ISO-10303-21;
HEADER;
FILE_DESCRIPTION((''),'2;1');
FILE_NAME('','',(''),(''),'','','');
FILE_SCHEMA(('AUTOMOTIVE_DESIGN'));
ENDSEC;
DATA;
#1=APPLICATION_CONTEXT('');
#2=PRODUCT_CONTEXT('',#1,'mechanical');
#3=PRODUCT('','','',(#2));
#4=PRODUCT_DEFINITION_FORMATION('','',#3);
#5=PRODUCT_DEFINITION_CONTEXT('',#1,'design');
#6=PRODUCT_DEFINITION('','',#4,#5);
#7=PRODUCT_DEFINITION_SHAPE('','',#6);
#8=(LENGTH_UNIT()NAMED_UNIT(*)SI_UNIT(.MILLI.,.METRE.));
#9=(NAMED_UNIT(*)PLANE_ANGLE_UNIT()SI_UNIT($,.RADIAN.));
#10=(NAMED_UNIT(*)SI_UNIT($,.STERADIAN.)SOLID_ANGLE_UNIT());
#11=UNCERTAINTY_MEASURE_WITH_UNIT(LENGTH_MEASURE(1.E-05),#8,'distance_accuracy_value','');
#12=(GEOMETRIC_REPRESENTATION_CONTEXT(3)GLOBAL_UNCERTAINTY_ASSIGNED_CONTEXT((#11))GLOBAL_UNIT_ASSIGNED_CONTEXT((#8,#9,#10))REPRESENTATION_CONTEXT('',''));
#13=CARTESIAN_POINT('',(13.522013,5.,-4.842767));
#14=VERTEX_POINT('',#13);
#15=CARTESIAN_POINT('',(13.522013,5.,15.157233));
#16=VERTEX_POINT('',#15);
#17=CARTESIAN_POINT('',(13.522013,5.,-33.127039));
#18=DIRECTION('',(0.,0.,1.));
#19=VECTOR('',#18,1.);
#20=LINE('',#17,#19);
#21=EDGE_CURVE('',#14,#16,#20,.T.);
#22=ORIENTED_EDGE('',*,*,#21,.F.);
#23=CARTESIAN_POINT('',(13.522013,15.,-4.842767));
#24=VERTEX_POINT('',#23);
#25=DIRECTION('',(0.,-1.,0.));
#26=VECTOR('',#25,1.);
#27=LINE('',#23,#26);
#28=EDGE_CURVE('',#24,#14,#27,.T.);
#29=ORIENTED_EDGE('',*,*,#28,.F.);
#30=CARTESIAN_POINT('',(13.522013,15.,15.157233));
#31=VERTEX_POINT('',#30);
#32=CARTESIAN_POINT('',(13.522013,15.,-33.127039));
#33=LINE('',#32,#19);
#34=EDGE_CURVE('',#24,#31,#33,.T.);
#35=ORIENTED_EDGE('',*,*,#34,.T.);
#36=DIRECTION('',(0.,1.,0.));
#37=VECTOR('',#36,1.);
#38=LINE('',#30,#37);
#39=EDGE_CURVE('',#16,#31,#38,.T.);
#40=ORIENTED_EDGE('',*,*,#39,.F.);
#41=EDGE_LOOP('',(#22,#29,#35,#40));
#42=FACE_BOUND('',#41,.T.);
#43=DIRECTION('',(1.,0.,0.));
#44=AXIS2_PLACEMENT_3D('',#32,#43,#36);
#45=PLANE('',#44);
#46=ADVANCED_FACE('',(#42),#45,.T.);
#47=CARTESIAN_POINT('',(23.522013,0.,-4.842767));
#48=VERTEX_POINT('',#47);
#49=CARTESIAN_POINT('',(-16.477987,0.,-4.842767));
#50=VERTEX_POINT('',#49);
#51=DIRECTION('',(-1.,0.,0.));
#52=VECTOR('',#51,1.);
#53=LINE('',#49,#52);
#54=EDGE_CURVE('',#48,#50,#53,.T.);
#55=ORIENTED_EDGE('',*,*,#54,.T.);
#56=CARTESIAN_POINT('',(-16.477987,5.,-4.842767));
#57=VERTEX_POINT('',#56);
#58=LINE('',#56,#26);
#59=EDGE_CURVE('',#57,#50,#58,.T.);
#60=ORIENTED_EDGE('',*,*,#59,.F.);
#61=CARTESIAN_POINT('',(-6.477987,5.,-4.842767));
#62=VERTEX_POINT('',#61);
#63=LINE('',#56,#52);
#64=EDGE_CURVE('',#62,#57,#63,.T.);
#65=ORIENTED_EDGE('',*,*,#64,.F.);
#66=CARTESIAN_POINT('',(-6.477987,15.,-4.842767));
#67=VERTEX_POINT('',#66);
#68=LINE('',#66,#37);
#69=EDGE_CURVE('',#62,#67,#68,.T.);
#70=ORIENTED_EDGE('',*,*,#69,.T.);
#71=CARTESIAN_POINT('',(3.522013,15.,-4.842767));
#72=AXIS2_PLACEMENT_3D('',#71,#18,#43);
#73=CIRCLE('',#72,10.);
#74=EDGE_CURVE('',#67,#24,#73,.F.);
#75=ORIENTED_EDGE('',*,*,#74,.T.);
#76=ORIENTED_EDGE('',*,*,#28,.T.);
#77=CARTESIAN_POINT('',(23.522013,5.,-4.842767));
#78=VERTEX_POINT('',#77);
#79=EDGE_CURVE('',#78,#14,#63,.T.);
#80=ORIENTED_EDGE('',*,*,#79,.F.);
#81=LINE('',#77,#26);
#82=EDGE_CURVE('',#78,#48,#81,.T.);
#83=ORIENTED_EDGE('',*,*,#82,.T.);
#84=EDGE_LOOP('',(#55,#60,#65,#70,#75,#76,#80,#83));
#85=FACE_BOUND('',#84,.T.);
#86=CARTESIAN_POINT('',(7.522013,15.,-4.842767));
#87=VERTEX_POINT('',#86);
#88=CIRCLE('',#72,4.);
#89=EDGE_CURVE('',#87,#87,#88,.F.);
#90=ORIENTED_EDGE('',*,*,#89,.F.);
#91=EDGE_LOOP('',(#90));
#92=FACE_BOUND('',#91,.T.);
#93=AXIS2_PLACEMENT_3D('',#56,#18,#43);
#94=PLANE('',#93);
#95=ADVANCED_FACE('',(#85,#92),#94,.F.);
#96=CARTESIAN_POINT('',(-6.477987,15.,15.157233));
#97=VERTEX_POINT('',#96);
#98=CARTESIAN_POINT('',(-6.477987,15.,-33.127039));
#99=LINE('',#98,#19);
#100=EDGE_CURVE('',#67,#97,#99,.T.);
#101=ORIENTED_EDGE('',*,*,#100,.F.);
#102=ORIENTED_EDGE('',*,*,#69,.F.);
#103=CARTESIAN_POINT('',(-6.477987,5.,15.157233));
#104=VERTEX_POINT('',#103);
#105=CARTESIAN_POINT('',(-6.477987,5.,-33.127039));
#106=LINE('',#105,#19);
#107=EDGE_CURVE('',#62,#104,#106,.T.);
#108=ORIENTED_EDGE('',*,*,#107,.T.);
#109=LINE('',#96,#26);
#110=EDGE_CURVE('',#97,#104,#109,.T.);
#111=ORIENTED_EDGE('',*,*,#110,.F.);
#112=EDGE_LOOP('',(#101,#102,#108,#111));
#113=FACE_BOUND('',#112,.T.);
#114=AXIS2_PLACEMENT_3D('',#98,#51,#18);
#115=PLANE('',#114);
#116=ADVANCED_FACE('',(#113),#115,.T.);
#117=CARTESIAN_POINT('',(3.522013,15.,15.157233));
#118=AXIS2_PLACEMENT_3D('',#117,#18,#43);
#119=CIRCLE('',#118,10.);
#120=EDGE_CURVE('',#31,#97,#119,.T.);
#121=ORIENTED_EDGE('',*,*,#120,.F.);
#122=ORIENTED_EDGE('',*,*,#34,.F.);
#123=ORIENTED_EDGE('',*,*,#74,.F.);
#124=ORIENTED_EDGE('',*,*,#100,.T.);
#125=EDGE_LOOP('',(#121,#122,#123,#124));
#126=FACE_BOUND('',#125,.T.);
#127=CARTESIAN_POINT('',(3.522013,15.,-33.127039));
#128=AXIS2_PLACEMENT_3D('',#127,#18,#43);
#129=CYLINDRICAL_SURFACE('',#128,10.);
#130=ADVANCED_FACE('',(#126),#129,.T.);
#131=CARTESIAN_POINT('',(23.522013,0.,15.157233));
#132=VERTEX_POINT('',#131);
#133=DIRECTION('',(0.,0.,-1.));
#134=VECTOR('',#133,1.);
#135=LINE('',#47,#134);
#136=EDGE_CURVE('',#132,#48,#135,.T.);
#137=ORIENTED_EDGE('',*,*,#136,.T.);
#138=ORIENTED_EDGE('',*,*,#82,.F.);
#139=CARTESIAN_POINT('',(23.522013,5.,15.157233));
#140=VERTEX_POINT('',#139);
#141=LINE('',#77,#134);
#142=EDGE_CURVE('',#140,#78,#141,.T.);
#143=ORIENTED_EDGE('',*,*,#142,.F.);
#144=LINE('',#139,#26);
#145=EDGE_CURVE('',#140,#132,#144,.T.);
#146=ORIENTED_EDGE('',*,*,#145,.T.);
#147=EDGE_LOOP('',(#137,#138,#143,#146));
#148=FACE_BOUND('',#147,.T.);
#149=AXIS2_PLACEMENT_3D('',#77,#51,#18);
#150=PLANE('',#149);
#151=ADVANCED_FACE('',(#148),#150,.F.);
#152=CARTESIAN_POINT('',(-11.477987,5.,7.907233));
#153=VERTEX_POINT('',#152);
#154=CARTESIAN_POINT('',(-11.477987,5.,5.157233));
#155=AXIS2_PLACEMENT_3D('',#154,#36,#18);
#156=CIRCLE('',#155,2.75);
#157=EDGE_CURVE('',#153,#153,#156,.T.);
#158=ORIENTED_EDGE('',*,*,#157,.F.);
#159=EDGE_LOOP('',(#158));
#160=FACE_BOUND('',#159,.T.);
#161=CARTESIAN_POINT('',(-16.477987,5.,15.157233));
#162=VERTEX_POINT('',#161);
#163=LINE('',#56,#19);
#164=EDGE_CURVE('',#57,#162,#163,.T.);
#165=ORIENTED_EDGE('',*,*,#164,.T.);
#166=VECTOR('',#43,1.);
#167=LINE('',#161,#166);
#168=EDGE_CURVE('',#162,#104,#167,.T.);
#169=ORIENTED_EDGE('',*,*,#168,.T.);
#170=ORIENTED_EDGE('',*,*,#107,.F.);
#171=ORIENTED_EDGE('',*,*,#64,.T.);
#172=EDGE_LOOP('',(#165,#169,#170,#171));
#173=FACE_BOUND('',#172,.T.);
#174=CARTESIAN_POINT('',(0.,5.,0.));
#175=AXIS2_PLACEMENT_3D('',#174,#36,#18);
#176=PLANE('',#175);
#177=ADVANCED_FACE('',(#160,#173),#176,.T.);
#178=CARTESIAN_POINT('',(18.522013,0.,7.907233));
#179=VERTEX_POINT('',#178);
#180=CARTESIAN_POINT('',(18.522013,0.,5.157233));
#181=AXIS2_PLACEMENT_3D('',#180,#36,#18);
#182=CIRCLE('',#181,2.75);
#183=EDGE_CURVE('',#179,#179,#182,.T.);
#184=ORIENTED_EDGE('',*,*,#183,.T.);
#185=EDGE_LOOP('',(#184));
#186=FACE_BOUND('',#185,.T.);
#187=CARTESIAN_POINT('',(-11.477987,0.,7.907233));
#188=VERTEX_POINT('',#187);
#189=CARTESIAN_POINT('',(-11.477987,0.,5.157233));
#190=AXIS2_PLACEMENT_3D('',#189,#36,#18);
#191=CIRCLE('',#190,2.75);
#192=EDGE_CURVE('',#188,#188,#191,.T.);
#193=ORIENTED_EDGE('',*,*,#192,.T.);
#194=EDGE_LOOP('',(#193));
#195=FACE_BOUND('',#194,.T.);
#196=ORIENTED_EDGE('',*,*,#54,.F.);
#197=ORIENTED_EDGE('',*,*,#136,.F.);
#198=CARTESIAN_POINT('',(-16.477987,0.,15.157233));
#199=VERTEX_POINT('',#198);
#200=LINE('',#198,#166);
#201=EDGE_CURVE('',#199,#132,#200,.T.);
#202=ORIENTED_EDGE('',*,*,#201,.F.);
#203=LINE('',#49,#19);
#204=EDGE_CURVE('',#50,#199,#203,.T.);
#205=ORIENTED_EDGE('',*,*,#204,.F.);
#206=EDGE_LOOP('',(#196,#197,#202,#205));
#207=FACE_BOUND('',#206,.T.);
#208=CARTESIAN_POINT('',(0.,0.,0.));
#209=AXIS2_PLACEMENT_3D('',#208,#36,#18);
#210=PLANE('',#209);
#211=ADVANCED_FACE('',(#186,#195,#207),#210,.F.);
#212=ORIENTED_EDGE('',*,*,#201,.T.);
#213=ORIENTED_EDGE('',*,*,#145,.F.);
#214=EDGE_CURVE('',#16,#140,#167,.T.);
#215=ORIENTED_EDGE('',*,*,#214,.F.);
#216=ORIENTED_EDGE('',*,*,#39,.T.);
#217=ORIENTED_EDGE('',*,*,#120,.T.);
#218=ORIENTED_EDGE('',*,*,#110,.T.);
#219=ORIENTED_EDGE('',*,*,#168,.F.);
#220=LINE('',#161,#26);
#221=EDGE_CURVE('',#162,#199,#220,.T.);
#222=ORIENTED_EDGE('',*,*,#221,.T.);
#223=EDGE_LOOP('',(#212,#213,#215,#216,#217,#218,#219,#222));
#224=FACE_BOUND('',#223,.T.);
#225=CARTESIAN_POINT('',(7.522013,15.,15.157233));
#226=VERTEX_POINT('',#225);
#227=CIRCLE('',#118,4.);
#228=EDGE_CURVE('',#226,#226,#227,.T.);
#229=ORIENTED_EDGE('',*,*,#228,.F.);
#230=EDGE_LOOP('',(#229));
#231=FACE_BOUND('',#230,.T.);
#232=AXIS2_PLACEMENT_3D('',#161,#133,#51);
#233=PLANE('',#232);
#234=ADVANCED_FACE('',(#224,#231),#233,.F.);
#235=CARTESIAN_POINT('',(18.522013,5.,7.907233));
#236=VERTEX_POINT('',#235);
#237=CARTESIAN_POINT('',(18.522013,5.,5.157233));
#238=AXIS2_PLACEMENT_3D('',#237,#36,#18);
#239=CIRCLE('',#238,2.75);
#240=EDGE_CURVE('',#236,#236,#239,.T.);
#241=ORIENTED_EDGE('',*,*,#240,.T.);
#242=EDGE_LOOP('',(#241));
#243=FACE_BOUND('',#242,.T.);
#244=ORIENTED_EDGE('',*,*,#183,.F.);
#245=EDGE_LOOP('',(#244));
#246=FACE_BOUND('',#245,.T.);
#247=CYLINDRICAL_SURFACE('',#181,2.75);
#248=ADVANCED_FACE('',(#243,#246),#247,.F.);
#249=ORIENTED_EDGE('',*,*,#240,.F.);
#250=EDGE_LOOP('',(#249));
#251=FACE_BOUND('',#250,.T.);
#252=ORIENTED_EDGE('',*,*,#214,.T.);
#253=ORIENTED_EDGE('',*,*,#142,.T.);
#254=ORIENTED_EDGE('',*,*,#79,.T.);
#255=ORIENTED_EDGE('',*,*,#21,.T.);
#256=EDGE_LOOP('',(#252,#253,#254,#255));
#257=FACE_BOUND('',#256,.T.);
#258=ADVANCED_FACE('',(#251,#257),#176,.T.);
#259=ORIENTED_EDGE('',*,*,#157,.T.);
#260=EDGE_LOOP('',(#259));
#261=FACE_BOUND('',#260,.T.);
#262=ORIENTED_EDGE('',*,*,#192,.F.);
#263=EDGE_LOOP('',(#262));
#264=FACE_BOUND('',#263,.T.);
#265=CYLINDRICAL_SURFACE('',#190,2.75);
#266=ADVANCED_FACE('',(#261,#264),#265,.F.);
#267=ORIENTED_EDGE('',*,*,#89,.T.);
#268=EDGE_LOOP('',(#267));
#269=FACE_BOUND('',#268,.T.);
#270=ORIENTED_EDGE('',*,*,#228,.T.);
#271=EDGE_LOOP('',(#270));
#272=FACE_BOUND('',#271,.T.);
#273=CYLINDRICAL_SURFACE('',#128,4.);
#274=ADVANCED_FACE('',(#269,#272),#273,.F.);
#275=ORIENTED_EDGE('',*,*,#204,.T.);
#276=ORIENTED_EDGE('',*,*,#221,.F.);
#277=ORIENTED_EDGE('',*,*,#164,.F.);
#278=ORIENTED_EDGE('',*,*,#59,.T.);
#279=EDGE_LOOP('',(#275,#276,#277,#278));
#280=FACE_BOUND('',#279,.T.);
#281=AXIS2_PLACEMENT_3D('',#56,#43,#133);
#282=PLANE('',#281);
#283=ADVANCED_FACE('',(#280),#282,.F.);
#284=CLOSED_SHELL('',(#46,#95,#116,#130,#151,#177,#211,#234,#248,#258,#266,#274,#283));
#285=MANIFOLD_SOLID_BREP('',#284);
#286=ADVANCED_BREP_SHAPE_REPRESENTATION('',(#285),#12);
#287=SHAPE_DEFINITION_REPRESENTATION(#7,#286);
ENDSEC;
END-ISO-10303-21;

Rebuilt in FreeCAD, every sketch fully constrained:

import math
import FreeCAD as App
import Part
import Sketcher

doc = App.newDocument("Part")
body = doc.addObject("PartDesign::Body", "Body")

# Sketch on XZ plane
sketch1 = doc.addObject("Sketcher::SketchObject", "Sketch")
body.addObject(sketch1)
sketch1.AttachmentSupport = (doc.XZ_Plane, [""])
sketch1.MapMode = "FlatFace"
sketch1.addGeometry(Part.LineSegment(App.Vector(-16, -5, 0), App.Vector(-16, 15, 0)), False)
sketch1.addGeometry(Part.LineSegment(App.Vector(-16, 15, 0), App.Vector(24, 15, 0)), False)
sketch1.addGeometry(Part.LineSegment(App.Vector(24, 15, 0), App.Vector(24, -5, 0)), False)
sketch1.addGeometry(Part.LineSegment(App.Vector(24, -5, 0), App.Vector(-16, -5, 0)), False)
sketch1.addConstraint(Sketcher.Constraint("Coincident", 0, 2, 1, 1))
sketch1.addConstraint(Sketcher.Constraint("Coincident", 1, 2, 2, 1))
sketch1.addConstraint(Sketcher.Constraint("Coincident", 2, 2, 3, 1))
sketch1.addConstraint(Sketcher.Constraint("Coincident", 3, 2, 0, 1))
sketch1.addConstraint(Sketcher.Constraint("Vertical", 0))
sketch1.addConstraint(Sketcher.Constraint("Horizontal", 1))
sketch1.addConstraint(Sketcher.Constraint("Vertical", 2))
sketch1.addConstraint(Sketcher.Constraint("Horizontal", 3))
sketch1.addConstraint(Sketcher.Constraint("DistanceX", 1, 1, 1, 2, 40.0))
sketch1.addConstraint(Sketcher.Constraint("DistanceY", 0, 1, 0, 2, 20.0))
sketch1.addConstraint(Sketcher.Constraint("DistanceX", 0, 2, -1, 1, 16.477987))
sketch1.addConstraint(Sketcher.Constraint("DistanceY", -1, 1, 0, 2, 15.157233))
pad1 = doc.addObject("PartDesign::Pad", "Pad")
body.addObject(pad1)
pad1.Profile = sketch1
pad1.Length = 5
pad1.Reversed = True

# Sketch on XY plane
sketch2 = doc.addObject("Sketcher::SketchObject", "Sketch001")
body.addObject(sketch2)
sketch2.AttachmentSupport = (doc.XY_Plane, [""])
sketch2.MapMode = "FlatFace"
sketch2.AttachmentOffset = App.Placement(App.Vector(0, 0, 15.157233), App.Rotation())
sketch2.addGeometry(Part.LineSegment(App.Vector(-6.5, 15, 0), App.Vector(-6.5, 5, 0)), False)
sketch2.addGeometry(Part.LineSegment(App.Vector(-6.5, 5, 0), App.Vector(13.5, 5, 0)), False)
sketch2.addGeometry(Part.LineSegment(App.Vector(13.5, 5, 0), App.Vector(13.5, 15, 0)), False)
sketch2.addGeometry(Part.ArcOfCircle(Part.Circle(App.Vector(3.5, 15, 0), App.Vector(0, 0, 1), 10), math.radians(0), math.radians(180)), False)
sketch2.addGeometry(Part.Circle(App.Vector(3.5, 15, 0), App.Vector(0, 0, 1), 4), False)
sketch2.addConstraint(Sketcher.Constraint("Coincident", 0, 2, 1, 1))
sketch2.addConstraint(Sketcher.Constraint("Coincident", 1, 2, 2, 1))
sketch2.addConstraint(Sketcher.Constraint("Tangent", 2, 2, 3, 1))
sketch2.addConstraint(Sketcher.Constraint("Tangent", 3, 2, 0, 1))
sketch2.addConstraint(Sketcher.Constraint("Vertical", 0))
sketch2.addConstraint(Sketcher.Constraint("Horizontal", 1))
sketch2.addConstraint(Sketcher.Constraint("Vertical", 2))
sketch2.addConstraint(Sketcher.Constraint("Coincident", 4, 3, 3, 3))
sketch2.addConstraint(Sketcher.Constraint("Diameter", 4, 8.0))
sketch2.addConstraint(Sketcher.Constraint("Radius", 3, 10.0))
sketch2.addConstraint(Sketcher.Constraint("DistanceY", 0, 2, 0, 1, 10.0))
sketch2.addConstraint(Sketcher.Constraint("DistanceY", -1, 1, 3, 3, 15.0))
sketch2.addConstraint(Sketcher.Constraint("DistanceX", -1, 1, 3, 3, 3.522013))
pad2 = doc.addObject("PartDesign::Pad", "Pad001")
body.addObject(pad2)
pad2.Profile = sketch2
pad2.Length = 20
pad2.Reversed = True

# Sketch on XZ plane
sketch3 = doc.addObject("Sketcher::SketchObject", "Sketch002")
body.addObject(sketch3)
sketch3.AttachmentSupport = (doc.XZ_Plane, [""])
sketch3.MapMode = "FlatFace"
sketch3.AttachmentOffset = App.Placement(App.Vector(0, 0, -5), App.Rotation())
sketch3.addGeometry(Part.Circle(App.Vector(-11.5, 5.2, 0), App.Vector(0, 0, 1), 2.8), False)
sketch3.addGeometry(Part.Circle(App.Vector(18.5, 5.2, 0), App.Vector(0, 0, 1), 2.8), False)
sketch3.addConstraint(Sketcher.Constraint("Equal", 0, 1))
sketch3.addConstraint(Sketcher.Constraint("Horizontal", 0, 3, 1, 3))
sketch3.addConstraint(Sketcher.Constraint("Diameter", 0, 5.5))
sketch3.addConstraint(Sketcher.Constraint("DistanceX", 0, 3, 1, 3, 30.0))
sketch3.addConstraint(Sketcher.Constraint("DistanceX", 0, 3, -1, 1, 11.477987))
sketch3.addConstraint(Sketcher.Constraint("DistanceY", -1, 1, 0, 3, 5.157233))
pocket1 = doc.addObject("PartDesign::Pocket", "Pocket")
body.addObject(pocket1)
pocket1.Profile = sketch3
pocket1.Type = "ThroughAll"
pocket1.Reversed = True

doc.recompute()
